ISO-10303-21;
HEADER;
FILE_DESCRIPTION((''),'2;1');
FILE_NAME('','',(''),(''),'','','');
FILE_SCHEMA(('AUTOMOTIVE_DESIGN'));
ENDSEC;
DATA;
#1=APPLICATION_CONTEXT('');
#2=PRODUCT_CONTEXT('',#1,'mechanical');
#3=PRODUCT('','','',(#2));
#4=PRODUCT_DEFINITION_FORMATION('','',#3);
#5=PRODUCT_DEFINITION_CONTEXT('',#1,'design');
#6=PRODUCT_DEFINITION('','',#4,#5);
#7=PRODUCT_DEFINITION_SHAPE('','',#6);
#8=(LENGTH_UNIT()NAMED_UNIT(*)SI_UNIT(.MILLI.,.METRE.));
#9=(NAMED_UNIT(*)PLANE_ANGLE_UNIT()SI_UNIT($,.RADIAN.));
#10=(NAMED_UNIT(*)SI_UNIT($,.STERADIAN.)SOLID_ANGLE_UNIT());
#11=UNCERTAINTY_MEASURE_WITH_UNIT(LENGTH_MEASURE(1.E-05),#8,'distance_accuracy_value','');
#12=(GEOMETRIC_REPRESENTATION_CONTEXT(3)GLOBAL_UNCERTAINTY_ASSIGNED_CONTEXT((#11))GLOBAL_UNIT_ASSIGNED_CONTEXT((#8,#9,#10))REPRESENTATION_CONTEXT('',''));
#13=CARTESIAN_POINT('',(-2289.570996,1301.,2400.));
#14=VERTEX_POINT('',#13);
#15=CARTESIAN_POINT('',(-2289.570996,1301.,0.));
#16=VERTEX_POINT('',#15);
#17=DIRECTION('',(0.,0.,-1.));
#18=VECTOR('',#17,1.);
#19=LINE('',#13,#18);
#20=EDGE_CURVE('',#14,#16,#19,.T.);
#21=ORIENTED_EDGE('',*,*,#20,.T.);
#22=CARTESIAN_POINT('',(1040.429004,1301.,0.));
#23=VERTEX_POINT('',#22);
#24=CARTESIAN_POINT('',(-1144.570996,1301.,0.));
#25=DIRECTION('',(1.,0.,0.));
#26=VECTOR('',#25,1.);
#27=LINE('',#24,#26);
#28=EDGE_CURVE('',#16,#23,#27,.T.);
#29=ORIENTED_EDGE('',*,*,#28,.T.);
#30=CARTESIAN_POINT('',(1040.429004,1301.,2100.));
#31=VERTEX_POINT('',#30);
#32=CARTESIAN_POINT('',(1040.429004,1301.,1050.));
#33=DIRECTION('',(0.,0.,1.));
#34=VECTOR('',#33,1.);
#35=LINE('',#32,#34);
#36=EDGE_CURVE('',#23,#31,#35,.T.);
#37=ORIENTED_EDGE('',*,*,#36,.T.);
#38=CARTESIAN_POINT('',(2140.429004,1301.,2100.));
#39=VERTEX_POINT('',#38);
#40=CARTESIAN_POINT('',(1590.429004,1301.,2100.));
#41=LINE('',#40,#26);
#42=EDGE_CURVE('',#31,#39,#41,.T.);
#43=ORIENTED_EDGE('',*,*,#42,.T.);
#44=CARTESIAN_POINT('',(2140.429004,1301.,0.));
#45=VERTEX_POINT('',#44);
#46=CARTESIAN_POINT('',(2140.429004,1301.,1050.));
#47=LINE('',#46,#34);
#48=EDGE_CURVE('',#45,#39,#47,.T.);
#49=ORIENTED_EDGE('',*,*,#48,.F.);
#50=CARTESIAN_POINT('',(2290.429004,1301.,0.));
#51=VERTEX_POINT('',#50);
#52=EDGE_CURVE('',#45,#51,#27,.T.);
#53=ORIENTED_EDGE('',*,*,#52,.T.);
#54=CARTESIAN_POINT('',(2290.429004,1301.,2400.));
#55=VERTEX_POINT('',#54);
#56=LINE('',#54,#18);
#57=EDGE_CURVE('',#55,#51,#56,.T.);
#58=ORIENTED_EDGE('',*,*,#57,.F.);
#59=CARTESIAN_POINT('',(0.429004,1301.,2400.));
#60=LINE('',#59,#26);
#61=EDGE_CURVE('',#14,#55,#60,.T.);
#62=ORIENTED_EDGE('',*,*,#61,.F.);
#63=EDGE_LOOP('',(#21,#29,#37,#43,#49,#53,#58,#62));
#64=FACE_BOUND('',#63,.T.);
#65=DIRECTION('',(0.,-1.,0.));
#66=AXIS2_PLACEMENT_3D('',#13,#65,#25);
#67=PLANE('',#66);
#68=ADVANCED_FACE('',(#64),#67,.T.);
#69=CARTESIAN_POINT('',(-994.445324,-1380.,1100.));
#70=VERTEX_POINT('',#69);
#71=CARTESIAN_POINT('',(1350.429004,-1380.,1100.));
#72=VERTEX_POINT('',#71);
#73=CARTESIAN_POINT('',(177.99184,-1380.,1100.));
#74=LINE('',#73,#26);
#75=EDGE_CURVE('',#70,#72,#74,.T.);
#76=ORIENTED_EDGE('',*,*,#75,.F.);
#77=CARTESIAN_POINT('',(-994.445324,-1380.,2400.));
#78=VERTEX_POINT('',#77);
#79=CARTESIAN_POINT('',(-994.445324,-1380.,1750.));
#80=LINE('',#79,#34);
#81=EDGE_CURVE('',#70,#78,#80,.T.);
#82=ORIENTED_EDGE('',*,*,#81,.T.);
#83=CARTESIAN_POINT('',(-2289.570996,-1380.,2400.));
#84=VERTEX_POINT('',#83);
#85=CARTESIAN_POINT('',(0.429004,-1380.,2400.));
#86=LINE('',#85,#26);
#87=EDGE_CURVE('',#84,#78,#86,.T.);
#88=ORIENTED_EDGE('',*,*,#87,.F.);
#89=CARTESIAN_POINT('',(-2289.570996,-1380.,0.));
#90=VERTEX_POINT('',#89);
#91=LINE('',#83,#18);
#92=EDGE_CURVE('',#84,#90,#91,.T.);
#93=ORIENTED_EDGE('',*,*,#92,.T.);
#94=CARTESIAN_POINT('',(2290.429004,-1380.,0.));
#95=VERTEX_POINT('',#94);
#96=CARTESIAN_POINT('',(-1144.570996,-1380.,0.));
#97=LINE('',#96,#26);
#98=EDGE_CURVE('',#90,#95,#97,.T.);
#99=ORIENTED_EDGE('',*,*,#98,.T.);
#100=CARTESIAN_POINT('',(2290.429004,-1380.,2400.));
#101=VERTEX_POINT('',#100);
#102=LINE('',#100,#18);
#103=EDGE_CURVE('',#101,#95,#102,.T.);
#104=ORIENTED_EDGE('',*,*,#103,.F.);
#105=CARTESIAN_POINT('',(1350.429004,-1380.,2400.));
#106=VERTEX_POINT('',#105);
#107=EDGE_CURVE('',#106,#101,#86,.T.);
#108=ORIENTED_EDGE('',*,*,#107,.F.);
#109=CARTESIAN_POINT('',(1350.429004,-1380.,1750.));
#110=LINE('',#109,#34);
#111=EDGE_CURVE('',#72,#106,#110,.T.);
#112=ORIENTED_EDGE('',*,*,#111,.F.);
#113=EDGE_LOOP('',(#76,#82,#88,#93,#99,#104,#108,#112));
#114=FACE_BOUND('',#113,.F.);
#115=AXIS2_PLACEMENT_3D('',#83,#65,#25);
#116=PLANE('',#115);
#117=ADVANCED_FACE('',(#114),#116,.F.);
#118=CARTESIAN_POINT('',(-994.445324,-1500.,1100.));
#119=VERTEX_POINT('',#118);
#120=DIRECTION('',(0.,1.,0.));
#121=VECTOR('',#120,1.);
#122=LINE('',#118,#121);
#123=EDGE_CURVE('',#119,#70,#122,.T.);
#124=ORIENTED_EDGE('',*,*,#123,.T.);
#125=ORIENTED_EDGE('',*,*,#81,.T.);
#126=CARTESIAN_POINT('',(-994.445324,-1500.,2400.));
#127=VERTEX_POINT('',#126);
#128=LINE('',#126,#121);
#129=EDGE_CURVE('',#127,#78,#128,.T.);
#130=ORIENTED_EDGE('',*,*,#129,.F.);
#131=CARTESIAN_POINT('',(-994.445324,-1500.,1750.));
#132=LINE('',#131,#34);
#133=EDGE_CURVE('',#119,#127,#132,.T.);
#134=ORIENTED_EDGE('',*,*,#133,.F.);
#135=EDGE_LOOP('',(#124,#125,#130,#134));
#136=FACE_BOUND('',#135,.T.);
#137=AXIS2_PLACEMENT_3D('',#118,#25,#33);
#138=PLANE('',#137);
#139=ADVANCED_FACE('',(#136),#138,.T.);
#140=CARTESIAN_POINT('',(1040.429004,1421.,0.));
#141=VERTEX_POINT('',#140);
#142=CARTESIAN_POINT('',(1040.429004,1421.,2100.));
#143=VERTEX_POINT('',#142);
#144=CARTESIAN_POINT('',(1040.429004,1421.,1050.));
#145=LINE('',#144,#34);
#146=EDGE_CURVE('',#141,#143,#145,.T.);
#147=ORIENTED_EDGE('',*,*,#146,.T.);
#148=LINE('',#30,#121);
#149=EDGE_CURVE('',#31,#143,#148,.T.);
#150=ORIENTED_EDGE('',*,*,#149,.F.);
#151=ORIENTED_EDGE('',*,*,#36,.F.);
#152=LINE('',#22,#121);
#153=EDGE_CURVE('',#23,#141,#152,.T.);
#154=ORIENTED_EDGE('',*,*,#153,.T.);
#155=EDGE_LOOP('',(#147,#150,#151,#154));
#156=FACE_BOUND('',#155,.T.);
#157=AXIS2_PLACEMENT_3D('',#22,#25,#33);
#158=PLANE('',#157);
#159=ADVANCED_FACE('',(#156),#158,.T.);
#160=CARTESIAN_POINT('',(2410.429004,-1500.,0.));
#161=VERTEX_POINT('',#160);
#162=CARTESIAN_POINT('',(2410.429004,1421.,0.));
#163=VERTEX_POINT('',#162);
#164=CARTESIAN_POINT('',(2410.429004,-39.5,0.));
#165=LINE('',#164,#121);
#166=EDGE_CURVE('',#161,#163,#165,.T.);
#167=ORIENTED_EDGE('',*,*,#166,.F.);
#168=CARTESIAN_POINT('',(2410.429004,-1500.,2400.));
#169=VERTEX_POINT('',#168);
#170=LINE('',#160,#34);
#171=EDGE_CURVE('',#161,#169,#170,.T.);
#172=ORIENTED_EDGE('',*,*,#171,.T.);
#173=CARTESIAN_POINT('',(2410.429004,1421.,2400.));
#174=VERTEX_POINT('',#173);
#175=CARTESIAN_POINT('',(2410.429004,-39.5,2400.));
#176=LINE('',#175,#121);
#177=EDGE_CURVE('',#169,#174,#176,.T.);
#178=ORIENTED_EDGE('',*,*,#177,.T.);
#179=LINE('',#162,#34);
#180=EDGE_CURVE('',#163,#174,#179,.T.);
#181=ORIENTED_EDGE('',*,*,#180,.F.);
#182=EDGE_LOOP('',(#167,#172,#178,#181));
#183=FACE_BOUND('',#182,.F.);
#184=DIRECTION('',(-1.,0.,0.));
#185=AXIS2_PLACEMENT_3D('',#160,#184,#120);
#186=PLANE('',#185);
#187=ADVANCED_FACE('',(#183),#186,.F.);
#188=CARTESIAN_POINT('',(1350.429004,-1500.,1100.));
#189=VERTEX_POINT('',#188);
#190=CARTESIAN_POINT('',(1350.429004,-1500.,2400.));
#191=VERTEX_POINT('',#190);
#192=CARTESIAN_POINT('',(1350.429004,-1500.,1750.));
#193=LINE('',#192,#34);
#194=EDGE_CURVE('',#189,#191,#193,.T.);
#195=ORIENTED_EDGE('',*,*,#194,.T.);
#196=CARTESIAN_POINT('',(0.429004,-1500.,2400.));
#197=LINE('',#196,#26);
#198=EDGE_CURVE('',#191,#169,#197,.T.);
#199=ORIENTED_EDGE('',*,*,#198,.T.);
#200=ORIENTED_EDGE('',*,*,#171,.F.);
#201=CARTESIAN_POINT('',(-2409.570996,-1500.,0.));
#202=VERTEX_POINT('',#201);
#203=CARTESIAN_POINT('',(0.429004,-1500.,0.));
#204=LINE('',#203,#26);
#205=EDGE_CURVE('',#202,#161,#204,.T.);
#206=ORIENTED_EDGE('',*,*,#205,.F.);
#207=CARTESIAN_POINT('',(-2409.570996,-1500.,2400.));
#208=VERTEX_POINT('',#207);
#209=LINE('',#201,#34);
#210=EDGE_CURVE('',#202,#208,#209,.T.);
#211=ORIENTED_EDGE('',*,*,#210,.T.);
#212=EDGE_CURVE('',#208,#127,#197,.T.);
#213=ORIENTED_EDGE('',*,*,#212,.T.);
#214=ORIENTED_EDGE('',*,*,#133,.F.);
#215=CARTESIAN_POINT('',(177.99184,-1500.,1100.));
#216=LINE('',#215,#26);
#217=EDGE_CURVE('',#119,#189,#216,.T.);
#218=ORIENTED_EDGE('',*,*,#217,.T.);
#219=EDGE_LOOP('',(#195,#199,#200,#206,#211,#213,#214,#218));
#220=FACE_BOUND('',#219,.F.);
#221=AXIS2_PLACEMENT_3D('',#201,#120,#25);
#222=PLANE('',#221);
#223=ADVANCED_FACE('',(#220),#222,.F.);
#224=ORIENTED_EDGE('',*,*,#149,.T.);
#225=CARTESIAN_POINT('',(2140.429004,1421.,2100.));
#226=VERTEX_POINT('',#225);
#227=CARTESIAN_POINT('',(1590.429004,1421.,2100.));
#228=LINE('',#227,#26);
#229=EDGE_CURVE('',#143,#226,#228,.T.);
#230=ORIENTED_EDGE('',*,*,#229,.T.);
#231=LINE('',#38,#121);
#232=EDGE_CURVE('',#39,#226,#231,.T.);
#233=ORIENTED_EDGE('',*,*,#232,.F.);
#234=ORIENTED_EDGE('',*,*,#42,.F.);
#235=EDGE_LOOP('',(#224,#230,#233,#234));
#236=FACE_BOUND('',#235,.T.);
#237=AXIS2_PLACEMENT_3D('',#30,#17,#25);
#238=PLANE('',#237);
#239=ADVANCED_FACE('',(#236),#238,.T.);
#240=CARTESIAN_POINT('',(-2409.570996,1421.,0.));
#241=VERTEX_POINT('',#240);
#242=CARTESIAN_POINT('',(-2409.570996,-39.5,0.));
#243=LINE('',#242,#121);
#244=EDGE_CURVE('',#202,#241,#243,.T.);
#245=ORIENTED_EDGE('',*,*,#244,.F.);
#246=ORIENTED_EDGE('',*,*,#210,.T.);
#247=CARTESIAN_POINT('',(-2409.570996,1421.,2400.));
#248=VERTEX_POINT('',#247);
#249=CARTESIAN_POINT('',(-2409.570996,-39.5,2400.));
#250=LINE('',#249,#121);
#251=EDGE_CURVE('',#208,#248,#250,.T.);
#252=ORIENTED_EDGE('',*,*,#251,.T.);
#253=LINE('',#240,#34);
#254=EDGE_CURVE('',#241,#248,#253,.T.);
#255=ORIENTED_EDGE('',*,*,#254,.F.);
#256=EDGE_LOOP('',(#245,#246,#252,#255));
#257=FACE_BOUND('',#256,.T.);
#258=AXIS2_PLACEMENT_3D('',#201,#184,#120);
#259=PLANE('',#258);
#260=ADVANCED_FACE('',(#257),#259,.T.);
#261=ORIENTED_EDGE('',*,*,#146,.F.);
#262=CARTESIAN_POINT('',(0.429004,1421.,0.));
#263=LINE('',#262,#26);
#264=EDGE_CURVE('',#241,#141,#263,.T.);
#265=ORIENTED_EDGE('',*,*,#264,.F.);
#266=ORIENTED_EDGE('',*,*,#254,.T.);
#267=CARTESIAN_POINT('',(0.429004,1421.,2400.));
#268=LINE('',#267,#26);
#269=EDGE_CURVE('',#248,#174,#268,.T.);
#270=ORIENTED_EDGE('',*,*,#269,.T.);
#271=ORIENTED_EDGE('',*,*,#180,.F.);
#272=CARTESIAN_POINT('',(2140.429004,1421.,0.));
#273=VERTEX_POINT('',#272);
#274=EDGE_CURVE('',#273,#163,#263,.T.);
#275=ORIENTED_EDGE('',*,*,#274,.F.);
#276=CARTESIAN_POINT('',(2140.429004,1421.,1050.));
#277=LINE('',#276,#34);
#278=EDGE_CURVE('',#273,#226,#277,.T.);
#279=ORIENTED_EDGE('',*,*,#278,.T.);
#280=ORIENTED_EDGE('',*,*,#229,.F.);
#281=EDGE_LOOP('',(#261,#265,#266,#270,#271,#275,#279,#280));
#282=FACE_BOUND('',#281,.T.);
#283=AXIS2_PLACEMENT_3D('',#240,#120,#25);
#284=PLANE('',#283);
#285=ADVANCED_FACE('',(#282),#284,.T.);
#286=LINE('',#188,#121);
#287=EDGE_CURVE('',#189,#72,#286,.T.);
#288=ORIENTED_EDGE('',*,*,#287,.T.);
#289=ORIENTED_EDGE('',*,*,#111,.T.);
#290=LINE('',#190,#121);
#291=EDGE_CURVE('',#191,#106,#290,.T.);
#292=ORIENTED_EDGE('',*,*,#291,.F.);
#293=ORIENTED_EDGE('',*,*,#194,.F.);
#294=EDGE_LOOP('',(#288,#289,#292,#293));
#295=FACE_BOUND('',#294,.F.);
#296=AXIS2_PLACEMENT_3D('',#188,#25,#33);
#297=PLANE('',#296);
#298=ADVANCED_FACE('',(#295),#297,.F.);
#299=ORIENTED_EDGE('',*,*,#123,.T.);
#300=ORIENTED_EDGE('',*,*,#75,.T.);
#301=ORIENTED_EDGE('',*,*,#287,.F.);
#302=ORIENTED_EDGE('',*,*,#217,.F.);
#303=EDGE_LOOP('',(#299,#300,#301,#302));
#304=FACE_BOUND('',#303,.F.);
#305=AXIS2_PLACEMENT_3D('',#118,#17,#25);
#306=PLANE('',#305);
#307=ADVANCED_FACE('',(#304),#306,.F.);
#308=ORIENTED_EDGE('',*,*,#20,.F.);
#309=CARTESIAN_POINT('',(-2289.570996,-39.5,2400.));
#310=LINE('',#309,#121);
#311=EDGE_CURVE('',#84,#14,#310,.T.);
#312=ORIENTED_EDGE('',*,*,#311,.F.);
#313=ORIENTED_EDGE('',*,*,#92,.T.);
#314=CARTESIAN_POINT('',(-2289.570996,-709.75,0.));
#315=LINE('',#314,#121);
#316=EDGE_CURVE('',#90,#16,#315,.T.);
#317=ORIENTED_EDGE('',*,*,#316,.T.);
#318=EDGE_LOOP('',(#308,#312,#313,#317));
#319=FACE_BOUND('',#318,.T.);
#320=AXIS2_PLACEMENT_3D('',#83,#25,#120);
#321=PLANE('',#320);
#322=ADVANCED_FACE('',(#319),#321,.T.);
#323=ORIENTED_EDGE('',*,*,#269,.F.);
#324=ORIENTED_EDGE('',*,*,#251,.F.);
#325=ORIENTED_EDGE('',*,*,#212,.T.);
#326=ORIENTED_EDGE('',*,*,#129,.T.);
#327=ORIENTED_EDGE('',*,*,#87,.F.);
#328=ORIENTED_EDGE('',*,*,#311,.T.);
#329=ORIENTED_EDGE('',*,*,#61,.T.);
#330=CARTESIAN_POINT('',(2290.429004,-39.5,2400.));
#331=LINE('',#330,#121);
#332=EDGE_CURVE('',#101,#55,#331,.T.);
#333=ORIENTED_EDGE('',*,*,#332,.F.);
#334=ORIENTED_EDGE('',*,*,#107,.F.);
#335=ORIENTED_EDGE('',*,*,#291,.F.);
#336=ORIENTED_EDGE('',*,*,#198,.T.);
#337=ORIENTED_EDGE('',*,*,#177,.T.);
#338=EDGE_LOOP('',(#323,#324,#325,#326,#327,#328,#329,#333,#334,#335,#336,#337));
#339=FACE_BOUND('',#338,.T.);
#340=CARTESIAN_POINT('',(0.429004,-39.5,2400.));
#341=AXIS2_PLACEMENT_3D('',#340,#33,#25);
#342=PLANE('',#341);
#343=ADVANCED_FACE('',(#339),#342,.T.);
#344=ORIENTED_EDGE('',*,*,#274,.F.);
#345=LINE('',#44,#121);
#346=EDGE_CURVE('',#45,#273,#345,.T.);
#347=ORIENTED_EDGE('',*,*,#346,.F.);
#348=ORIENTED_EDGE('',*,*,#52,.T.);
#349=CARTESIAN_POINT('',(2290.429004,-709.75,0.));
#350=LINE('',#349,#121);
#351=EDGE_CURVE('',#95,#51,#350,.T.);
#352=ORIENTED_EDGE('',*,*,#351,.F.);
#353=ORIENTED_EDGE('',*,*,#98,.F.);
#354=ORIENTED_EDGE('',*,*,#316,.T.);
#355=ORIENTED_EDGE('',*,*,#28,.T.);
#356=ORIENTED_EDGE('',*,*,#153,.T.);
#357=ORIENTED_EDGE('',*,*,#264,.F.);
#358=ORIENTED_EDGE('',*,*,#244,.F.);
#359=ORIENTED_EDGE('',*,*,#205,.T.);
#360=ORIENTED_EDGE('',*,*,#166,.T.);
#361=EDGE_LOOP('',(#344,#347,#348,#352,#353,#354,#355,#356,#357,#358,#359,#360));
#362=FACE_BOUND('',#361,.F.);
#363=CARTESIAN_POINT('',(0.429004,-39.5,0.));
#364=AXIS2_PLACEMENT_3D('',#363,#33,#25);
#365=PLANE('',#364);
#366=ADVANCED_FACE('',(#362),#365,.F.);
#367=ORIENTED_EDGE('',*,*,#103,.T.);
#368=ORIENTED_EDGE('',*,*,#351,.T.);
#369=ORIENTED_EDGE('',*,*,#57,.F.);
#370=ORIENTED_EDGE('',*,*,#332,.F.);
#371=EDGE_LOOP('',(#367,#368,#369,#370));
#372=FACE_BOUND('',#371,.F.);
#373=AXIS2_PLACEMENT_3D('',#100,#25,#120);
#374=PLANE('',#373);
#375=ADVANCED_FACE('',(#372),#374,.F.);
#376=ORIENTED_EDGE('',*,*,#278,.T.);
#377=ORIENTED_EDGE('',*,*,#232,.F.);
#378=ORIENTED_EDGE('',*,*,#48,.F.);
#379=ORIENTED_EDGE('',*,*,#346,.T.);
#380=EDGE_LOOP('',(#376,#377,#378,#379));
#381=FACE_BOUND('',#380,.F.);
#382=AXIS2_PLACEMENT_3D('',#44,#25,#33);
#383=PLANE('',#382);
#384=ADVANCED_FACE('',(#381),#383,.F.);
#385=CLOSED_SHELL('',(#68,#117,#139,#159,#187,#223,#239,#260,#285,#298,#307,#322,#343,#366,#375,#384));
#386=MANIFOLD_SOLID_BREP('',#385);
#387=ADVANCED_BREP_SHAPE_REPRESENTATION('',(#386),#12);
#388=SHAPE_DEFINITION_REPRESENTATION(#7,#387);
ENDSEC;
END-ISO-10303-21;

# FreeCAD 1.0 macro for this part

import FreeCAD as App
import Part
import Sketcher
Q = App.Units.Quantity

doc = App.newDocument("Part")
params = doc.addObject("Spreadsheet::Sheet", "Params")
for row, (alias, value) in enumerate([
    ("sketch1_width", "4820 mm"),
    ("sketch1_height", "2921 mm"),
    ("pad1_length", "2400 mm"),
    ("sketch2_width", "4580 mm"),
    ("sketch2_height", "2681 mm"),
    ("sketch3_height", "1300 mm"),
    ("pocket2_length", "120 mm"),
    ("sketch4_width", "1100 mm"),
    ("sketch4_height", "2100 mm"),
], start=1):
    params.set(f"A{row}", alias)
    params.set(f"B{row}", "=" + value)
    params.setAlias(f"B{row}", alias)

body = doc.addObject("PartDesign::Body", "Body")

sketch1 = body.newObject("Sketcher::SketchObject", "Sketch")
sketch1.AttachmentSupport = (doc.getObject("XY_Plane"), [""])
sketch1.MapMode = "FlatFace"
sketch1.addGeometry(Part.LineSegment(App.Vector(-2410, 1421, 0), App.Vector(-2410, -1500, 0)), False)
sketch1.addGeometry(Part.LineSegment(App.Vector(-2410, -1500, 0), App.Vector(2410, -1500, 0)), False)
sketch1.addGeometry(Part.LineSegment(App.Vector(2410, -1500, 0), App.Vector(2410, 1421, 0)), False)
sketch1.addGeometry(Part.LineSegment(App.Vector(2410, 1421, 0), App.Vector(-2410, 1421, 0)), False)
sketch1.addConstraint(Sketcher.Constraint("Coincident", 0, 2, 1, 1))
sketch1.addConstraint(Sketcher.Constraint("Coincident", 1, 2, 2, 1))
sketch1.addConstraint(Sketcher.Constraint("Coincident", 2, 2, 3, 1))
sketch1.addConstraint(Sketcher.Constraint("Coincident", 3, 2, 0, 1))
sketch1.addConstraint(Sketcher.Constraint("Vertical", 0))
sketch1.addConstraint(Sketcher.Constraint("Horizontal", 1))
sketch1.addConstraint(Sketcher.Constraint("Vertical", 2))
sketch1.addConstraint(Sketcher.Constraint("Horizontal", 3))
sketch1.addConstraint(Sketcher.Constraint("DistanceX", 1, 1, 1, 2, Q("4820 mm")))
sketch1.addConstraint(Sketcher.Constraint("DistanceY", 0, 2, 0, 1, Q("2921 mm")))
sketch1.addConstraint(Sketcher.Constraint("DistanceY", 0, 2, -1, 1, Q("1500 mm")))
sketch1.addConstraint(Sketcher.Constraint("DistanceX", 0, 2, -1, 1, Q("2409.570996 mm")))
sketch1.setExpression("Constraints[8]", "Params.sketch1_width")
sketch1.setExpression("Constraints[9]", "Params.sketch1_height")
pad1 = body.newObject("PartDesign::Pad", "Pad")
pad1.Profile = sketch1
pad1.setExpression("Length", "Params.pad1_length")

sketch2 = body.newObject("Sketcher::SketchObject", "Sketch001")
sketch2.AttachmentSupport = (doc.getObject("XY_Plane"), [""])
sketch2.MapMode = "FlatFace"
sketch2.AttachmentOffset = App.Placement(App.Vector(0, 0, 2400), App.Rotation())
sketch2.addGeometry(Part.LineSegment(App.Vector(-2290, 1301, 0), App.Vector(-2290, -1380, 0)), False)
sketch2.addGeometry(Part.LineSegment(App.Vector(-2290, -1380, 0), App.Vector(2290, -1380, 0)), False)
sketch2.addGeometry(Part.LineSegment(App.Vector(2290, -1380, 0), App.Vector(2290, 1301, 0)), False)
sketch2.addGeometry(Part.LineSegment(App.Vector(2290, 1301, 0), App.Vector(-2290, 1301, 0)), False)
sketch2.addConstraint(Sketcher.Constraint("Coincident", 0, 2, 1, 1))
sketch2.addConstraint(Sketcher.Constraint("Coincident", 1, 2, 2, 1))
sketch2.addConstraint(Sketcher.Constraint("Coincident", 2, 2, 3, 1))
sketch2.addConstraint(Sketcher.Constraint("Coincident", 3, 2, 0, 1))
sketch2.addConstraint(Sketcher.Constraint("Vertical", 0))
sketch2.addConstraint(Sketcher.Constraint("Horizontal", 1))
sketch2.addConstraint(Sketcher.Constraint("Vertical", 2))
sketch2.addConstraint(Sketcher.Constraint("Horizontal", 3))
sketch2.addConstraint(Sketcher.Constraint("DistanceX", 1, 1, 1, 2, Q("4580 mm")))
sketch2.addConstraint(Sketcher.Constraint("DistanceY", 0, 2, 0, 1, Q("2681 mm")))
sketch2.addConstraint(Sketcher.Constraint("DistanceY", 0, 2, -1, 1, Q("1380 mm")))
sketch2.addConstraint(Sketcher.Constraint("DistanceX", 0, 2, -1, 1, Q("2289.570996 mm")))
sketch2.setExpression("Constraints[8]", "Params.sketch2_width")
sketch2.setExpression("Constraints[9]", "Params.sketch2_height")
pocket1 = body.newObject("PartDesign::Pocket", "Pocket")
pocket1.Profile = sketch2
pocket1.Type = "ThroughAll"

sketch3 = body.newObject("Sketcher::SketchObject", "Sketch002")
sketch3.AttachmentSupport = (doc.getObject("XZ_Plane"), [""])
sketch3.MapMode = "FlatFace"
sketch3.AttachmentOffset = App.Placement(App.Vector(0, 0, 1500), App.Rotation())
sketch3.addGeometry(Part.LineSegment(App.Vector(-994, 2400, 0), App.Vector(-994, 1100, 0)), False)
sketch3.addGeometry(Part.LineSegment(App.Vector(-994, 1100, 0), App.Vector(1350, 1100, 0)), False)
sketch3.addGeometry(Part.LineSegment(App.Vector(1350, 1100, 0), App.Vector(1350, 2400, 0)), False)
sketch3.addGeometry(Part.LineSegment(App.Vector(1350, 2400, 0), App.Vector(-994, 2400, 0)), False)
sketch3.addConstraint(Sketcher.Constraint("Coincident", 0, 2, 1, 1))
sketch3.addConstraint(Sketcher.Constraint("Coincident", 1, 2, 2, 1))
sketch3.addConstraint(Sketcher.Constraint("Coincident", 2, 2, 3, 1))
sketch3.addConstraint(Sketcher.Constraint("Coincident", 3, 2, 0, 1))
sketch3.addConstraint(Sketcher.Constraint("Vertical", 0))
sketch3.addConstraint(Sketcher.Constraint("Horizontal", 1))
sketch3.addConstraint(Sketcher.Constraint("Vertical", 2))
sketch3.addConstraint(Sketcher.Constraint("Horizontal", 3))
sketch3.addConstraint(Sketcher.Constraint("DistanceY", 0, 2, 0, 1, Q("1300 mm")))
sketch3.addConstraint(Sketcher.Constraint("DistanceY", -1, 1, 0, 2, Q("1100 mm")))
sketch3.addConstraint(Sketcher.Constraint("DistanceX", 1, 1, 1, 2, Q("2344.874328 mm")))
sketch3.addConstraint(Sketcher.Constraint("DistanceX", 0, 2, -1, 1, Q("994.445324 mm")))
sketch3.setExpression("Constraints[8]", "Params.sketch3_height")
pocket2 = body.newObject("PartDesign::Pocket", "Pocket001")
pocket2.Profile = sketch3
pocket2.setExpression("Length", "Params.pocket2_length")

sketch4 = body.newObject("Sketcher::SketchObject", "Sketch003")
sketch4.AttachmentSupport = (doc.getObject("XZ_Plane"), [""])
sketch4.MapMode = "FlatFace"
sketch4.AttachmentOffset = App.Placement(App.Vector(0, 0, -1301), App.Rotation())
sketch4.addGeometry(Part.LineSegment(App.Vector(1040, 2100, 0), App.Vector(1040, 0, 0)), False)
sketch4.addGeometry(Part.LineSegment(App.Vector(1040, 0, 0), App.Vector(2140, 0, 0)), False)
sketch4.addGeometry(Part.LineSegment(App.Vector(2140, 0, 0), App.Vector(2140, 2100, 0)), False)
sketch4.addGeometry(Part.LineSegment(App.Vector(2140, 2100, 0), App.Vector(1040, 2100, 0)), False)
sketch4.addConstraint(Sketcher.Constraint("Coincident", 0, 2, 1, 1))
sketch4.addConstraint(Sketcher.Constraint("Coincident", 1, 2, 2, 1))
sketch4.addConstraint(Sketcher.Constraint("Coincident", 2, 2, 3, 1))
sketch4.addConstraint(Sketcher.Constraint("Coincident", 3, 2, 0, 1))
sketch4.addConstraint(Sketcher.Constraint("Vertical", 0))
sketch4.addConstraint(Sketcher.Constraint("Horizontal", 1))
sketch4.addConstraint(Sketcher.Constraint("Vertical", 2))
sketch4.addConstraint(Sketcher.Constraint("Horizontal", 3))
sketch4.addConstraint(Sketcher.Constraint("PointOnObject", 0, 2, -1))
sketch4.addConstraint(Sketcher.Constraint("DistanceX", 1, 1, 1, 2, Q("1100 mm")))
sketch4.addConstraint(Sketcher.Constraint("DistanceY", 0, 2, 0, 1, Q("2100 mm")))
sketch4.addConstraint(Sketcher.Constraint("DistanceX", -1, 1, 0, 2, Q("1040.429004 mm")))
sketch4.setExpression("Constraints[9]", "Params.sketch4_width")
sketch4.setExpression("Constraints[10]", "Params.sketch4_height")
pocket3 = body.newObject("PartDesign::Pocket", "Pocket002")
pocket3.Profile = sketch4
pocket3.Type = "ThroughAll"

doc.recompute()
